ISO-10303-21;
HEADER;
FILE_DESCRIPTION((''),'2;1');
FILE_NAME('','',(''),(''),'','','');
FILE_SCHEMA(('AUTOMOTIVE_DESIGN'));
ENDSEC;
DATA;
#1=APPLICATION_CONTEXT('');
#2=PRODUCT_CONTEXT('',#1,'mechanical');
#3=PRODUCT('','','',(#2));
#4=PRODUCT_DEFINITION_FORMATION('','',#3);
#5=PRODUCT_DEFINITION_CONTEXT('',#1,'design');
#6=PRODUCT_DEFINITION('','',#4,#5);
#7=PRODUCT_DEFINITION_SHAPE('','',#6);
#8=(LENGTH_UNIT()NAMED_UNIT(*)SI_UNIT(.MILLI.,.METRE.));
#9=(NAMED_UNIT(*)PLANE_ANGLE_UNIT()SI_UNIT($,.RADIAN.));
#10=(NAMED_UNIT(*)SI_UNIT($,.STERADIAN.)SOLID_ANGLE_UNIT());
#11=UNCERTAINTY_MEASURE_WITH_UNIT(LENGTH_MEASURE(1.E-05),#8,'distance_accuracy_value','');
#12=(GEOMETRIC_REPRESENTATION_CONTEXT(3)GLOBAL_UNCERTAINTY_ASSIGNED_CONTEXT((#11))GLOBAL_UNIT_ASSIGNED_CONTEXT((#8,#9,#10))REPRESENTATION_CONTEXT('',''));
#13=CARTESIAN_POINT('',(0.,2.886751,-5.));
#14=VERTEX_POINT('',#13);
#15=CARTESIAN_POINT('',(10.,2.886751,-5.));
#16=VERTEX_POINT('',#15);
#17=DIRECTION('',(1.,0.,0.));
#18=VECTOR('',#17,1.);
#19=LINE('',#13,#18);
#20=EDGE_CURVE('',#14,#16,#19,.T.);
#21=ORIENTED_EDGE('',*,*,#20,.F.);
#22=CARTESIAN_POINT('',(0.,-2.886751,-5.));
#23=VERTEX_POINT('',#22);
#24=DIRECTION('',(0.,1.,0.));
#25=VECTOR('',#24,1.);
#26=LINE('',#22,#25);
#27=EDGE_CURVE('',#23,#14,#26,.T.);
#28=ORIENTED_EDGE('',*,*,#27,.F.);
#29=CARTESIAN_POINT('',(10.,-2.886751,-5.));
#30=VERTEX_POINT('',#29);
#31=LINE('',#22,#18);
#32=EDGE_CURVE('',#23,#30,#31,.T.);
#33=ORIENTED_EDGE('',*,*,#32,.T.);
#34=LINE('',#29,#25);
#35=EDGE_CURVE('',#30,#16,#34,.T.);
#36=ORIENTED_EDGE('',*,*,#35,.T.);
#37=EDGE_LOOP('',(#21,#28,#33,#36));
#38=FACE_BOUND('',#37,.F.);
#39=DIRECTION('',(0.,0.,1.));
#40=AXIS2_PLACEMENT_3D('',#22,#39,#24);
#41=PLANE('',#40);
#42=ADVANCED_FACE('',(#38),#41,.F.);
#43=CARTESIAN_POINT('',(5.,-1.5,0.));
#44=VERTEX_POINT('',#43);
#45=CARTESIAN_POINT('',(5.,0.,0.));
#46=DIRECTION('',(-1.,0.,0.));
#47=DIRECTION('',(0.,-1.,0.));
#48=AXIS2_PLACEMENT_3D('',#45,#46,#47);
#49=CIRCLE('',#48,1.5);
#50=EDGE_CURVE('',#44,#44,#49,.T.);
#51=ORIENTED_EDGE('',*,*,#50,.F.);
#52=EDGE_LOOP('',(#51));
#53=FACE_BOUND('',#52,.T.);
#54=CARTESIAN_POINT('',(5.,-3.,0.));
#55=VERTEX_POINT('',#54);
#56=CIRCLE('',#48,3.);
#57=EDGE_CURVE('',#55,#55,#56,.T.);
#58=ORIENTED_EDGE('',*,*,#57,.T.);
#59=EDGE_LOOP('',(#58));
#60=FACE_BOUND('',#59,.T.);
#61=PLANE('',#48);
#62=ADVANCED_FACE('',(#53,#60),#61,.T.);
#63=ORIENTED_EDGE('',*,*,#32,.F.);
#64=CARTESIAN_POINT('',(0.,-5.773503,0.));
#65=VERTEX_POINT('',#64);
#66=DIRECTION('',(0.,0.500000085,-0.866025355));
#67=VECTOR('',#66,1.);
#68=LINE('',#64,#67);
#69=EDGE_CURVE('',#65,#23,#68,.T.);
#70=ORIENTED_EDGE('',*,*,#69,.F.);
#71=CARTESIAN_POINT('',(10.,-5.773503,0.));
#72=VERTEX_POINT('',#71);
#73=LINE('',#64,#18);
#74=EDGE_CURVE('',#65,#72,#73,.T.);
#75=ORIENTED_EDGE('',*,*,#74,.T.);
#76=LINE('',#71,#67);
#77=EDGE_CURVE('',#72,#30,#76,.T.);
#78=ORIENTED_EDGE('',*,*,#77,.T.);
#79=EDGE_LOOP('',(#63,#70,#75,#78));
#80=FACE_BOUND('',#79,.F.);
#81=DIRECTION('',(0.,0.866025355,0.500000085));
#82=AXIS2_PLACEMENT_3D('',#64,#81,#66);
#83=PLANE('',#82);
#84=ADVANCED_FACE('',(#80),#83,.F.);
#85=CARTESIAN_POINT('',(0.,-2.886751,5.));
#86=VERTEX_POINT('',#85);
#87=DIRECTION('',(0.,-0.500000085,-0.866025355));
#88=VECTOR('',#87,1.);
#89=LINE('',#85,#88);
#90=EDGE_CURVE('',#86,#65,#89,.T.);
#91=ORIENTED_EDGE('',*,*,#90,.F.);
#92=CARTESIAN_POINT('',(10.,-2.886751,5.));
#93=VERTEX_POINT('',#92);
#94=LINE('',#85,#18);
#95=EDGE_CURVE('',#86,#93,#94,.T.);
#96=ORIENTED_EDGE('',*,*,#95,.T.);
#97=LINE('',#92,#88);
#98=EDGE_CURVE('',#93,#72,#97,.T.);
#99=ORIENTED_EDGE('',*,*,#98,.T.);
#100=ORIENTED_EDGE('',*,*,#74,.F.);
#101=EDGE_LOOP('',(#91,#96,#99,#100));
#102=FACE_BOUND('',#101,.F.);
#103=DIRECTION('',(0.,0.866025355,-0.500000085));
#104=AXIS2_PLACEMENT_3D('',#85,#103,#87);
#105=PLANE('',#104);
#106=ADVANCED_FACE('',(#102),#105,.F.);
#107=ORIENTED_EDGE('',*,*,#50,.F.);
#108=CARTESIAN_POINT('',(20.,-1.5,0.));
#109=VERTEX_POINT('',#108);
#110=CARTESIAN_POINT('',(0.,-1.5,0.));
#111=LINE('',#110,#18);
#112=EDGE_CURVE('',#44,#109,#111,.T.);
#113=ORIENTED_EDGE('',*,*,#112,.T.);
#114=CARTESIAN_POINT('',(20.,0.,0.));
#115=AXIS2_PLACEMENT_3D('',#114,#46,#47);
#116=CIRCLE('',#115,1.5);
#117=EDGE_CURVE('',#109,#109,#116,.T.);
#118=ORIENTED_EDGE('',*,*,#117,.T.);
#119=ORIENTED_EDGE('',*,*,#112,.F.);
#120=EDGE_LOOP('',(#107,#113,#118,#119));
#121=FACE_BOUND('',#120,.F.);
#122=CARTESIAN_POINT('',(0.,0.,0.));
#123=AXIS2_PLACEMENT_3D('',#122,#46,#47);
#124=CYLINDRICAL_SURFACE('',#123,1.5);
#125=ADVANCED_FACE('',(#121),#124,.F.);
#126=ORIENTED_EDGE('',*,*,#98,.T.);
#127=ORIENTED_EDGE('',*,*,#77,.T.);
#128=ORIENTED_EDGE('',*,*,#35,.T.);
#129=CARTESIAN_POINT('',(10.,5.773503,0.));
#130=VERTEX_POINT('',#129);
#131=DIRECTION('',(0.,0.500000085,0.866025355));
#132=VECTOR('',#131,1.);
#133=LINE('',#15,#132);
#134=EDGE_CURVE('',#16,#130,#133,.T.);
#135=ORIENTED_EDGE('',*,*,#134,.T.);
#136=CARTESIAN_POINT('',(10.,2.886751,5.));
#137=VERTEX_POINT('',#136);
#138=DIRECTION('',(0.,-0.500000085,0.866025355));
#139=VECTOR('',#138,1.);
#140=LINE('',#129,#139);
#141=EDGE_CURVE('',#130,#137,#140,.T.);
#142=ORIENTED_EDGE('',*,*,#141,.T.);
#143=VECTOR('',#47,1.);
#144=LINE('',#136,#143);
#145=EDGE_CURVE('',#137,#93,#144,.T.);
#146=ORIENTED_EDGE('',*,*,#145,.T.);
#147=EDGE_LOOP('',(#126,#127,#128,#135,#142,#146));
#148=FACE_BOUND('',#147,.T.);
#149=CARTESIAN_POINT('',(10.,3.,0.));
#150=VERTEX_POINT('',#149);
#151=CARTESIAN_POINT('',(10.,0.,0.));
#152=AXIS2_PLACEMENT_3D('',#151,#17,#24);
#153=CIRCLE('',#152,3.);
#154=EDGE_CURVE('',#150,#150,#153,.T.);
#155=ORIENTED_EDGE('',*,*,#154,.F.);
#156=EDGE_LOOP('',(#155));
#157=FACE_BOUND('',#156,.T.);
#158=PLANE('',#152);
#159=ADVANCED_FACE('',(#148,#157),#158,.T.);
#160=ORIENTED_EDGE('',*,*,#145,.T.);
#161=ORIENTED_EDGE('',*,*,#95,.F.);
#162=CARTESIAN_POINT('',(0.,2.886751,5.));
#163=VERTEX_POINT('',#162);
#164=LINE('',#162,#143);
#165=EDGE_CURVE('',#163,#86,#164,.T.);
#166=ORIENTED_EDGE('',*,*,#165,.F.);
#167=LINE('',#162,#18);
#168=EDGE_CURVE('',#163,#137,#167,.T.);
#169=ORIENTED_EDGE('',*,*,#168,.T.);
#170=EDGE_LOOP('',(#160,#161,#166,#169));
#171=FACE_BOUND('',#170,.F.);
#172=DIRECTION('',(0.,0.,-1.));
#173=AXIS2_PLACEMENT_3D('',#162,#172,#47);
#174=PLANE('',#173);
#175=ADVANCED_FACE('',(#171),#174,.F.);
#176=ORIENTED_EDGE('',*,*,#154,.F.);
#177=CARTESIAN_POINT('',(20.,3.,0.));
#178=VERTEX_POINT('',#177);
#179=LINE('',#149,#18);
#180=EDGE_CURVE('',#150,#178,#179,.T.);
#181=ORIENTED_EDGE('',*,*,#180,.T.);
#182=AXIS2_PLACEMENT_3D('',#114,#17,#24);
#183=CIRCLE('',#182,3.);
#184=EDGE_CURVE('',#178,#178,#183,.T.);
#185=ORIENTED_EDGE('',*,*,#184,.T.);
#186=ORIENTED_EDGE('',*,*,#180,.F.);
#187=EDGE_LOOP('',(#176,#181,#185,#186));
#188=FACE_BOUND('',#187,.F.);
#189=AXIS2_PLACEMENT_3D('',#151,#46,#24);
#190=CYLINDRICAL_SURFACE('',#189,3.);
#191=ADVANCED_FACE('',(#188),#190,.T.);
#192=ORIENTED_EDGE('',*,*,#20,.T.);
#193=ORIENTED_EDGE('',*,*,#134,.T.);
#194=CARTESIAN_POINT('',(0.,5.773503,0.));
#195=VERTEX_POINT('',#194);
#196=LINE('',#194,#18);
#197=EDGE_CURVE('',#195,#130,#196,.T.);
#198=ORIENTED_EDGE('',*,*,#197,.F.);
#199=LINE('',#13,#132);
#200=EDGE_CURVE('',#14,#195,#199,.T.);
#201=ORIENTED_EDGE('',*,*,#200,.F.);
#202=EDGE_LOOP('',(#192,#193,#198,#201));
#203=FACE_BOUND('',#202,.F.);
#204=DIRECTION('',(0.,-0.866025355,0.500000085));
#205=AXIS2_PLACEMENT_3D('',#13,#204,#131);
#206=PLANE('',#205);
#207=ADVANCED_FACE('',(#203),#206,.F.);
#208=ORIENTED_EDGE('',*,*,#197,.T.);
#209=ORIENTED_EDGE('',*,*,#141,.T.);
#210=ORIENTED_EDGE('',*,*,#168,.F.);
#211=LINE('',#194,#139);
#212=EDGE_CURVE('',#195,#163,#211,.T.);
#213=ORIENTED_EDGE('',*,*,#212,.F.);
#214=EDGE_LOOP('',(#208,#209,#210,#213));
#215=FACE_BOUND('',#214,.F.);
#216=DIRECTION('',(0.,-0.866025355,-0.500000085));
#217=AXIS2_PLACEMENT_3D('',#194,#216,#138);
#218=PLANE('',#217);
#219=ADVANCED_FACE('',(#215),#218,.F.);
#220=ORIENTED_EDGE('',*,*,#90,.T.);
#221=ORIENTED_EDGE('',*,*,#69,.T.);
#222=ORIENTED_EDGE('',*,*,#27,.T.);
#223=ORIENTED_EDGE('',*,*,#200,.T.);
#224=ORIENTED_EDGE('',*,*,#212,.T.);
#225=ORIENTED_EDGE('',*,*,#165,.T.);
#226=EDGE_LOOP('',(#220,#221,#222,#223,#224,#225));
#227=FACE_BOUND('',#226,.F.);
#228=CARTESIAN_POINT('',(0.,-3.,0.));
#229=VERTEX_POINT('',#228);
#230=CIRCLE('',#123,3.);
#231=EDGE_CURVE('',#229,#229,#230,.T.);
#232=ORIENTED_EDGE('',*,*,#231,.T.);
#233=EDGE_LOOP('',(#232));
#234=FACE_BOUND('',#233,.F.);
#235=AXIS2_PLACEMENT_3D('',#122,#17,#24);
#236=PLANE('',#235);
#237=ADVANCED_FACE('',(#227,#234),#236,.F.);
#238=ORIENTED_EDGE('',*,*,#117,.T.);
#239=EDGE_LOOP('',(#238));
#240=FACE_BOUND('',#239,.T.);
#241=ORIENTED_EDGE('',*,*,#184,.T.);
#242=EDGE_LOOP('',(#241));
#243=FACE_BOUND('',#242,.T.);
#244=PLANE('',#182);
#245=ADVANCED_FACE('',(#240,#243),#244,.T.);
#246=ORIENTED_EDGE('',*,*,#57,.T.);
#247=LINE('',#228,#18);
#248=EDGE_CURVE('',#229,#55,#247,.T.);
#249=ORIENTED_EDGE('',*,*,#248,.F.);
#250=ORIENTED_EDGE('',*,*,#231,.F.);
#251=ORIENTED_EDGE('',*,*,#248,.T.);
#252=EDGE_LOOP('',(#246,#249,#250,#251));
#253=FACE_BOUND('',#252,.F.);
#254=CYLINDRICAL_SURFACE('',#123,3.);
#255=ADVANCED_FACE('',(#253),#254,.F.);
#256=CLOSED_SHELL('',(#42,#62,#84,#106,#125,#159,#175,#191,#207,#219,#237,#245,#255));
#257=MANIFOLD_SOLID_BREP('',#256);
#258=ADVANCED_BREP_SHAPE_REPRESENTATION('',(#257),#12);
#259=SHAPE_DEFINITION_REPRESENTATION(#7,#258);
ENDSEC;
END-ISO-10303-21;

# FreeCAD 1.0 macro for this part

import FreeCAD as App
import Part
import Sketcher

V = App.Vector
Q = App.Units.Quantity


def add_polygon(sketch, points):
    """Adds a closed chain of lines whose ends are joined by coincident constraints."""
    first, n = sketch.GeometryCount, len(points)
    for a, b in zip(points, points[1:] + points[:1]):
        sketch.addGeometry(Part.LineSegment(App.Vector(*a, 0), App.Vector(*b, 0)), False)
    for i in range(n):
        sketch.addConstraint(Sketcher.Constraint("Coincident", first + i, 2, first + (i + 1) % n, 1))

doc = App.newDocument("Part")
body = doc.addObject("PartDesign::Body", "Body")

# Sketch on YZ plane
sketch1 = body.newObject("Sketcher::SketchObject", "Sketch")
sketch1.AttachmentSupport = (doc.getObject("YZ_Plane"), [""])
sketch1.MapMode = "FlatFace"
add_polygon(sketch1, [(3, 5), (-3, 5), (-6, 0), (-3, -5), (3, -5), (6, 0)])  # lines 0-5
sketch1.addConstraint(Sketcher.Constraint("Horizontal", 0))
sketch1.addConstraint(Sketcher.Constraint("Horizontal", 3))
sketch1.addConstraint(Sketcher.Constraint("Symmetric", 0, 2, 3, 2, -1, 1))
sketch1.addConstraint(Sketcher.Constraint("Symmetric", 1, 2, 4, 2, -1, 1))
sketch1.addConstraint(Sketcher.Constraint("PointOnObject", 1, 2, -1))
sketch1.addConstraint(Sketcher.Constraint("Parallel", 2, 5))
sketch1.addConstraint(Sketcher.Constraint("Vertical", 0, 2, 2, 2))
sketch1.addConstraint(Sketcher.Constraint("Angle", 1, Q("-120.000006 deg")))
sketch1.addConstraint(Sketcher.Constraint("DistanceY", -1, 1, 0, 2, Q("5 mm")))
sketch1.addConstraint(Sketcher.Constraint("DistanceX", 0, 2, 0, 1, Q("5.773502 mm")))
pad1 = body.newObject("PartDesign::Pad", "Pad")
pad1.Profile = sketch1
pad1.Length = 10

# Sketch on YZ plane
sketch2 = body.newObject("Sketcher::SketchObject", "Sketch001")
sketch2.AttachmentSupport = (doc.getObject("YZ_Plane"), [""])
sketch2.MapMode = "FlatFace"
sketch2.AttachmentOffset = App.Placement(V(0, 0, 10), App.Rotation())
sketch2.addGeometry(Part.Circle(V(0, 0, 0), V(0, 0, 1), 3), False)
sketch2.addConstraint(Sketcher.Constraint("Coincident", 0, 3, -1, 1))
sketch2.addConstraint(Sketcher.Constraint("Diameter", 0, Q("6 mm")))
pad2 = body.newObject("PartDesign::Pad", "Pad001")
pad2.Profile = sketch2
pad2.Length = 10

# Sketch on YZ plane
sketch3 = body.newObject("Sketcher::SketchObject", "Sketch002")
sketch3.AttachmentSupport = (doc.getObject("YZ_Plane"), [""])
sketch3.MapMode = "FlatFace"
sketch3.addGeometry(Part.Circle(V(0, 0, 0), V(0, 0, 1), 1.5), False)
sketch3.addConstraint(Sketcher.Constraint("Coincident", 0, 3, -1, 1))
sketch3.addConstraint(Sketcher.Constraint("Diameter", 0, Q("3 mm")))
pocket1 = body.newObject("PartDesign::Pocket", "Pocket")
pocket1.Profile = sketch3
pocket1.Length = 25
pocket1.Reversed = True

# Sketch on YZ plane
sketch4 = body.newObject("Sketcher::SketchObject", "Sketch003")
sketch4.AttachmentSupport = (doc.getObject("YZ_Plane"), [""])
sketch4.MapMode = "FlatFace"
sketch4.addGeometry(Part.Circle(V(0, 0, 0), V(0, 0, 1), 3), False)
sketch4.addConstraint(Sketcher.Constraint("Coincident", 0, 3, -1, 1))
sketch4.addConstraint(Sketcher.Constraint("Diameter", 0, Q("6 mm")))
pocket2 = body.newObject("PartDesign::Pocket", "Pocket001")
pocket2.Profile = sketch4
pocket2.Length = 5
pocket2.Reversed = True

doc.recompute()
